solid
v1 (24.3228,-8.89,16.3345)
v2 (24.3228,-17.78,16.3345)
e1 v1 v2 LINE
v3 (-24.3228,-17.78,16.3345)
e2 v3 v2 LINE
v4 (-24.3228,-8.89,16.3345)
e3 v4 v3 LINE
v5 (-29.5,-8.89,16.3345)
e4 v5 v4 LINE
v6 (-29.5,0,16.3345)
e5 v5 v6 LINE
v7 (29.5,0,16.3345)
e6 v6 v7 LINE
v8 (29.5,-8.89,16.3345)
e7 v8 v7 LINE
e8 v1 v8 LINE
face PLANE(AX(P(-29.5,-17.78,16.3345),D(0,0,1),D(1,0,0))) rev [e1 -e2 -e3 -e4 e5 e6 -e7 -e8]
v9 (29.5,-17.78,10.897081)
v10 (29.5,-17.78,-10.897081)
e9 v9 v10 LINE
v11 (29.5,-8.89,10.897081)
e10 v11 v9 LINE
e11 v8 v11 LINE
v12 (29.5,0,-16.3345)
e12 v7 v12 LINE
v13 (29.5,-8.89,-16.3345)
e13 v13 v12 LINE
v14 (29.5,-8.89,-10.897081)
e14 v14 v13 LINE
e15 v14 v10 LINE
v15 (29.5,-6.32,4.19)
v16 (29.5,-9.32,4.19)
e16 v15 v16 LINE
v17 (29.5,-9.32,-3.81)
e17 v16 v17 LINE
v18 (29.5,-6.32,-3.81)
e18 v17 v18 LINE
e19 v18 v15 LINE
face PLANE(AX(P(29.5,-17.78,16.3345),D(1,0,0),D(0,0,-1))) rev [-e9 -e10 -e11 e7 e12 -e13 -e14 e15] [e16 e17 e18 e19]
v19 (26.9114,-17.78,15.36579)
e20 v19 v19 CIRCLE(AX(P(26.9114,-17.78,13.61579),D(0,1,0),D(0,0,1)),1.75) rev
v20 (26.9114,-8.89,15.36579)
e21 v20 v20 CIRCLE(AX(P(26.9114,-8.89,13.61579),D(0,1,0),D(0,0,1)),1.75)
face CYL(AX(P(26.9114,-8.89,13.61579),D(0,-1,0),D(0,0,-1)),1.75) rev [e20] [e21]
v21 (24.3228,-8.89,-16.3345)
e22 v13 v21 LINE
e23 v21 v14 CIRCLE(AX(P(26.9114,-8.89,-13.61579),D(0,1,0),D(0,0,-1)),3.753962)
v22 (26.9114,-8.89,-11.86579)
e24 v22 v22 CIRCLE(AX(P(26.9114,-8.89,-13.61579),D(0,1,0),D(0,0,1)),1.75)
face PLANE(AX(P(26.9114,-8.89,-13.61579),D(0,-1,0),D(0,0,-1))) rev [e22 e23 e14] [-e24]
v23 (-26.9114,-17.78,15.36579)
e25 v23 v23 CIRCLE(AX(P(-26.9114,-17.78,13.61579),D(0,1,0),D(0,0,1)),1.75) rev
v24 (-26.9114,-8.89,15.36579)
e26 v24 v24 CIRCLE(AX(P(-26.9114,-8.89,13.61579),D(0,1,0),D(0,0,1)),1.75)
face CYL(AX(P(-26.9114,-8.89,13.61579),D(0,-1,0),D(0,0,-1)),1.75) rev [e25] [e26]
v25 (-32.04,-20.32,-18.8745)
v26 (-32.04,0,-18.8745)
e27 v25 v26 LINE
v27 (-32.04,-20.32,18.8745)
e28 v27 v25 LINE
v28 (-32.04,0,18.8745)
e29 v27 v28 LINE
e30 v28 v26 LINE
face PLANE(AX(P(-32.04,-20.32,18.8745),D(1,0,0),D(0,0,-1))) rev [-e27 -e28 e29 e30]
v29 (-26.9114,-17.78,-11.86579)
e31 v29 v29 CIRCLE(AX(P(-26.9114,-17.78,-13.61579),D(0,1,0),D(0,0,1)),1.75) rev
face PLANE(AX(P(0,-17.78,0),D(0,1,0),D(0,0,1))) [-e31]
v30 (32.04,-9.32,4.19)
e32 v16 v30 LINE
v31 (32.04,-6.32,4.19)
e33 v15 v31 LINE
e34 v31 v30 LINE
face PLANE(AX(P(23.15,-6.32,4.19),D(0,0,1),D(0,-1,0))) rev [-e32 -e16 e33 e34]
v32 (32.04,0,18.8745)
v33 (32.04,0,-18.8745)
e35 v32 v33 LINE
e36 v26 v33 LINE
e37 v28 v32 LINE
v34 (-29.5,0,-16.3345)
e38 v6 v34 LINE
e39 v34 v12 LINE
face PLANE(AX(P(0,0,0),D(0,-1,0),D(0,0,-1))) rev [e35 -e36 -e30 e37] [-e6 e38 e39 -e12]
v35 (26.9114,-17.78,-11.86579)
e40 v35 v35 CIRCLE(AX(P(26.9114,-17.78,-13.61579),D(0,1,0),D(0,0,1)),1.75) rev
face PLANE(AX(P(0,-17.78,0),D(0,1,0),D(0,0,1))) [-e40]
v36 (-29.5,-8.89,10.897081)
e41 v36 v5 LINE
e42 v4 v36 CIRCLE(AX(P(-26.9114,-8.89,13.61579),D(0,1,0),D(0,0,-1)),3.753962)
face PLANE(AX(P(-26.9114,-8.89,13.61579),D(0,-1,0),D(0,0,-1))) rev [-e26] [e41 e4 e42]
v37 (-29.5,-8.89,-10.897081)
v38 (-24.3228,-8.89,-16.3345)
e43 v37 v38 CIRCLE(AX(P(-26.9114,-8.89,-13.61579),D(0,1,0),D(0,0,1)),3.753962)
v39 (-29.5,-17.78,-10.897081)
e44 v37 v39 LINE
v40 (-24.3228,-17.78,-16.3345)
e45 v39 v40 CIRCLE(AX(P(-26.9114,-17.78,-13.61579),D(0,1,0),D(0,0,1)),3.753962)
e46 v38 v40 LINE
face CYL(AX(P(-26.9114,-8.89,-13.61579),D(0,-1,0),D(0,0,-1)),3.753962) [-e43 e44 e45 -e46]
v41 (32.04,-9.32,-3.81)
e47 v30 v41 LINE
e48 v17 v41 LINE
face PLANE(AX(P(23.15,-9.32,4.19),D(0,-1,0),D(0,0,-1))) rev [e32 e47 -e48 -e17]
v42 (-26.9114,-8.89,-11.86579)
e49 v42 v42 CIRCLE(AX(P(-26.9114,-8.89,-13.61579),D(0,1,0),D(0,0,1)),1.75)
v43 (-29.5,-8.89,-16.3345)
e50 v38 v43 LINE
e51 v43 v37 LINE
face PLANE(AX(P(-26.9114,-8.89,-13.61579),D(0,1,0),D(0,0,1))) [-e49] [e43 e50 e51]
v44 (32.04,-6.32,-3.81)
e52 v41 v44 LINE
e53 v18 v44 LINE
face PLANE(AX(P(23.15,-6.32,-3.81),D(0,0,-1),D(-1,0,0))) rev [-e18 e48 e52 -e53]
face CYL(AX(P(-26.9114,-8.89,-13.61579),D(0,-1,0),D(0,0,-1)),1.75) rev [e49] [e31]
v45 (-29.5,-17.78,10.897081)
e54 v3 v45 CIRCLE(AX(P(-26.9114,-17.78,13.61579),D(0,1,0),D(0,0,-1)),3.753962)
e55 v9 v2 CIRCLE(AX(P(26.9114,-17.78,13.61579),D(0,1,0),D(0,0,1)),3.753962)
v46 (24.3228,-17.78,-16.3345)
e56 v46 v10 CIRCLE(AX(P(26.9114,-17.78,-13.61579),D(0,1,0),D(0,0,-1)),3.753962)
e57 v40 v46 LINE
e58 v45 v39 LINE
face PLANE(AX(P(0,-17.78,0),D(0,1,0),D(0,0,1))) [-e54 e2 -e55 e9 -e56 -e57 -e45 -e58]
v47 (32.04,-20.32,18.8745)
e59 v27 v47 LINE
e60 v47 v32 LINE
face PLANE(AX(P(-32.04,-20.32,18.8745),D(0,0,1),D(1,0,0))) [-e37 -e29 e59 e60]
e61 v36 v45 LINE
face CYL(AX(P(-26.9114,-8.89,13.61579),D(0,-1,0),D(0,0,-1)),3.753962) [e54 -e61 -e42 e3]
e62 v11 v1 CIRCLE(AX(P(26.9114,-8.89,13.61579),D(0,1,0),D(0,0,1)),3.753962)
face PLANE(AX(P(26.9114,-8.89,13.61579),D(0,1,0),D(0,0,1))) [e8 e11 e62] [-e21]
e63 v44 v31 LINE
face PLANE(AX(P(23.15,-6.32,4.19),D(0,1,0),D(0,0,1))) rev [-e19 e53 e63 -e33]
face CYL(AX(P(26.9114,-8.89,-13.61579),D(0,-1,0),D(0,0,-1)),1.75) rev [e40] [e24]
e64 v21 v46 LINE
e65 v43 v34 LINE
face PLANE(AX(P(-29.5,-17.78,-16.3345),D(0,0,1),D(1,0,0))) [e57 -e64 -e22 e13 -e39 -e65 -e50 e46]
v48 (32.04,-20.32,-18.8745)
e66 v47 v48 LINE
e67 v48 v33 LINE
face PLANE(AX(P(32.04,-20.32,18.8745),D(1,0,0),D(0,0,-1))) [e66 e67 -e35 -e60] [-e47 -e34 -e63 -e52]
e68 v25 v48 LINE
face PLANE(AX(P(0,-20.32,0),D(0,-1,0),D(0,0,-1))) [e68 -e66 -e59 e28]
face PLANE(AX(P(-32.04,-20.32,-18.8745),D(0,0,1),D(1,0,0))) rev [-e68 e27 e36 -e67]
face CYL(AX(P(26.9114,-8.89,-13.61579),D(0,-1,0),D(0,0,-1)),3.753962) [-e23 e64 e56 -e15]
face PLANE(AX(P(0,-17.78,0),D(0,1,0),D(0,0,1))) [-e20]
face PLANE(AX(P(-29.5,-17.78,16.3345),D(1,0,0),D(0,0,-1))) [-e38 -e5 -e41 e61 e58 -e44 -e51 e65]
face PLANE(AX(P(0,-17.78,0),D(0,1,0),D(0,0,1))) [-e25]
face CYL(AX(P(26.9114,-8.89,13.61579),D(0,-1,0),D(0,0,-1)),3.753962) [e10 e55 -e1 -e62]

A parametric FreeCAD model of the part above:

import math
import FreeCAD as App
import Part
import Sketcher

doc = App.newDocument("Part")
body = doc.addObject("PartDesign::Body", "Body")

# Sketch on XZ plane
sketch1 = body.newObject("Sketcher::SketchObject", "Sketch")
sketch1.AttachmentSupport = (doc.getObject("XZ_Plane"), [""])
sketch1.MapMode = "FlatFace"
sketch1.addGeometry([
    Part.LineSegment(App.Vector(-32, -19, 0), App.Vector(-32, 19, 0)),
    Part.LineSegment(App.Vector(-32, 19, 0), App.Vector(32, 19, 0)),
    Part.LineSegment(App.Vector(32, 19, 0), App.Vector(32, -19, 0)),
    Part.LineSegment(App.Vector(32, -19, 0), App.Vector(-32, -19, 0)),
], False)
sketch1.addConstraint([
    Sketcher.Constraint("Coincident", 0, 2, 1, 1),
    Sketcher.Constraint("Coincident", 1, 2, 2, 1),
    Sketcher.Constraint("Coincident", 2, 2, 3, 1),
    Sketcher.Constraint("Coincident", 3, 2, 0, 1),
    Sketcher.Constraint("Vertical", 0),
    Sketcher.Constraint("Horizontal", 1),
    Sketcher.Constraint("Vertical", 2),
    Sketcher.Constraint("Horizontal", 3),
    Sketcher.Constraint("Symmetric", 0, 2, 2, 2, -1, 1),
    Sketcher.Constraint("DistanceX", 1, 1, 1, 2, 64.08),
    Sketcher.Constraint("DistanceY", 0, 1, 0, 2, 37.749),
])
pad1 = body.newObject("PartDesign::Pad", "Pad")
pad1.Profile = sketch1
pad1.Length = 20.32

# Sketch on XZ plane
sketch2 = body.newObject("Sketcher::SketchObject", "Sketch001")
sketch2.AttachmentSupport = (doc.getObject("XZ_Plane"), [""])
sketch2.MapMode = "FlatFace"
sketch2.addGeometry([
    Part.LineSegment(App.Vector(-30, -16, 0), App.Vector(-30, 16, 0)),
    Part.LineSegment(App.Vector(-30, 16, 0), App.Vector(30, 16, 0)),
    Part.LineSegment(App.Vector(30, 16, 0), App.Vector(30, -16, 0)),
    Part.LineSegment(App.Vector(30, -16, 0), App.Vector(-30, -16, 0)),
], False)
sketch2.addConstraint([
    Sketcher.Constraint("Coincident", 0, 2, 1, 1),
    Sketcher.Constraint("Coincident", 1, 2, 2, 1),
    Sketcher.Constraint("Coincident", 2, 2, 3, 1),
    Sketcher.Constraint("Coincident", 3, 2, 0, 1),
    Sketcher.Constraint("Vertical", 0),
    Sketcher.Constraint("Horizontal", 1),
    Sketcher.Constraint("Vertical", 2),
    Sketcher.Constraint("Horizontal", 3),
    Sketcher.Constraint("Symmetric", 0, 2, 2, 2, -1, 1),
    Sketcher.Constraint("DistanceX", 1, 1, 1, 2, 59.0),
    Sketcher.Constraint("DistanceY", 0, 1, 0, 2, 32.669),
])
pocket1 = body.newObject("PartDesign::Pocket", "Pocket")
pocket1.Profile = sketch2
pocket1.Length = 17.78
pocket1.Reversed = True

# Sketch on XZ plane
sketch3 = body.newObject("Sketcher::SketchObject", "Sketch002")
sketch3.AttachmentSupport = (doc.getObject("XZ_Plane"), [""])
sketch3.MapMode = "FlatFace"
sketch3.AttachmentOffset = App.Placement(App.Vector(0, 0, 17.78), App.Rotation())
sketch3.addGeometry([
    Part.LineSegment(App.Vector(-24.3, -16.3, 0), App.Vector(-29.5, -16.3, 0)),  # 0
    Part.LineSegment(App.Vector(-29.5, -16.3, 0), App.Vector(-29.5, -10.9, 0)),  # 1
    Part.ArcOfCircle(Part.Circle(App.Vector(-26.9, -13.6, 0), App.Vector(0, 0, 1), 3.8), math.radians(-46), math.radians(134)),  # 2
    Part.Circle(App.Vector(-26.9, -13.6, 0), App.Vector(0, 0, 1), 1.8),  # 3
    Part.LineSegment(App.Vector(29.5, -10.9, 0), App.Vector(29.5, -16.3, 0)),  # 4
    Part.LineSegment(App.Vector(29.5, -16.3, 0), App.Vector(24.3, -16.3, 0)),  # 5
    Part.ArcOfCircle(Part.Circle(App.Vector(26.9, -13.6, 0), App.Vector(0, 0, 1), 3.8), math.radians(46), math.radians(226)),  # 6
    Part.Circle(App.Vector(26.9, -13.6, 0), App.Vector(0, 0, 1), 1.8),  # 7
    Part.LineSegment(App.Vector(29.5, 16.3, 0), App.Vector(29.5, 10.9, 0)),  # 8
    Part.ArcOfCircle(Part.Circle(App.Vector(26.9, 13.6, 0), App.Vector(0, 0, 1), 3.8), math.radians(134), math.radians(314)),  # 9
    Part.LineSegment(App.Vector(24.3, 16.3, 0), App.Vector(29.5, 16.3, 0)),  # 10
    Part.Circle(App.Vector(26.9, 13.6, 0), App.Vector(0, 0, 1), 1.8),  # 11
    Part.LineSegment(App.Vector(-29.5, 10.9, 0), App.Vector(-29.5, 16.3, 0)),  # 12
    Part.LineSegment(App.Vector(-29.5, 16.3, 0), App.Vector(-24.3, 16.3, 0)),  # 13
    Part.ArcOfCircle(Part.Circle(App.Vector(-26.9, 13.6, 0), App.Vector(0, 0, 1), 3.8), math.radians(-134), math.radians(46)),  # 14
    Part.Circle(App.Vector(-26.9, 13.6, 0), App.Vector(0, 0, 1), 1.8),  # 15
], False)
sketch3.addConstraint([
    Sketcher.Constraint("Coincident", 0, 2, 1, 1),
    Sketcher.Constraint("Coincident", 1, 2, 2, 2),
    Sketcher.Constraint("Coincident", 2, 1, 0, 1),
    Sketcher.Constraint("Coincident", 4, 2, 5, 1),
    Sketcher.Constraint("Coincident", 5, 2, 6, 2),
    Sketcher.Constraint("Coincident", 6, 1, 4, 1),
    Sketcher.Constraint("Coincident", 8, 2, 9, 2),
    Sketcher.Constraint("Coincident", 9, 1, 10, 1),
    Sketcher.Constraint("Coincident", 10, 2, 8, 1),
    Sketcher.Constraint("Coincident", 12, 2, 13, 1),
    Sketcher.Constraint("Coincident", 13, 2, 14, 2),
    Sketcher.Constraint("Coincident", 14, 1, 12, 1),
    Sketcher.Constraint("Horizontal", 0),
    Sketcher.Constraint("Vertical", 1),
    Sketcher.Constraint("Vertical", 4),
    Sketcher.Constraint("Horizontal", 5),
    Sketcher.Constraint("Vertical", 8),
    Sketcher.Constraint("Horizontal", 10),
    Sketcher.Constraint("Vertical", 12),
    Sketcher.Constraint("Horizontal", 13),
    Sketcher.Constraint("Coincident", 3, 3, 2, 3),
    Sketcher.Constraint("Coincident", 7, 3, 6, 3),
    Sketcher.Constraint("Coincident", 11, 3, 9, 3),
    Sketcher.Constraint("Coincident", 15, 3, 14, 3),
    Sketcher.Constraint("Equal", 2, 6),
    Sketcher.Constraint("Equal", 3, 7),
    Sketcher.Constraint("Equal", 6, 9),
    Sketcher.Constraint("Equal", 7, 11),
    Sketcher.Constraint("Equal", 9, 14),
    Sketcher.Constraint("Equal", 11, 15),
    Sketcher.Constraint("Symmetric", 2, 3, 9, 3, -1, 1),
    Sketcher.Constraint("Symmetric", 6, 3, 14, 3, -1, 1),
    Sketcher.Constraint("Symmetric", 0, 2, 10, 2, -1, 1),
    Sketcher.Constraint("Symmetric", 4, 2, 12, 2, -1, 1),
    Sketcher.Constraint("Symmetric", 2, 3, 6, 3, -2),
    Sketcher.Constraint("Symmetric", 0, 2, 4, 2, -2),
    Sketcher.Constraint("Diameter", 3, 3.5),
    Sketcher.Constraint("DistanceX", 0, 2, -1, 1, 29.5),
    Sketcher.Constraint("DistanceX", 0, 2, 0, 1, 5.1772),
    Sketcher.Constraint("Radius", 2, 3.753962),
    Sketcher.Constraint("DistanceX", 2, 3, -1, 1, 26.9114),
    Sketcher.Constraint("DistanceY", 0, 2, -1, 1, 16.3345),
])
pad2 = body.newObject("PartDesign::Pad", "Pad001")
pad2.Profile = sketch3
pad2.Length = 8.89
pad2.Reversed = True

# Sketch on YZ plane
sketch4 = body.newObject("Sketcher::SketchObject", "Sketch003")
sketch4.AttachmentSupport = (doc.getObject("YZ_Plane"), [""])
sketch4.MapMode = "FlatFace"
sketch4.AttachmentOffset = App.Placement(App.Vector(0, 0, 32.04), App.Rotation())
sketch4.addGeometry([
    Part.LineSegment(App.Vector(-6.3, 4.2, 0), App.Vector(-9.3, 4.2, 0)),
    Part.LineSegment(App.Vector(-9.3, 4.2, 0), App.Vector(-9.3, -3.8, 0)),
    Part.LineSegment(App.Vector(-9.3, -3.8, 0), App.Vector(-6.3, -3.8, 0)),
    Part.LineSegment(App.Vector(-6.3, -3.8, 0), App.Vector(-6.3, 4.2, 0)),
], False)
sketch4.addConstraint([
    Sketcher.Constraint("Coincident", 0, 2, 1, 1),
    Sketcher.Constraint("Coincident", 1, 2, 2, 1),
    Sketcher.Constraint("Coincident", 2, 2, 3, 1),
    Sketcher.Constraint("Coincident", 3, 2, 0, 1),
    Sketcher.Constraint("Horizontal", 0),
    Sketcher.Constraint("Vertical", 1),
    Sketcher.Constraint("Horizontal", 2),
    Sketcher.Constraint("Vertical", 3),
    Sketcher.Constraint("DistanceX", 0, 2, 0, 1, 3.0),
    Sketcher.Constraint("DistanceY", 1, 2, 1, 1, 8.0),
    Sketcher.Constraint("DistanceX", 0, 2, -1, 1, 9.32),
    Sketcher.Constraint("DistanceY", -1, 1, 0, 2, 4.19),
])
pocket2 = body.newObject("PartDesign::Pocket", "Pocket001")
pocket2.Profile = sketch4
pocket2.Length = 8.89

doc.recompute()
